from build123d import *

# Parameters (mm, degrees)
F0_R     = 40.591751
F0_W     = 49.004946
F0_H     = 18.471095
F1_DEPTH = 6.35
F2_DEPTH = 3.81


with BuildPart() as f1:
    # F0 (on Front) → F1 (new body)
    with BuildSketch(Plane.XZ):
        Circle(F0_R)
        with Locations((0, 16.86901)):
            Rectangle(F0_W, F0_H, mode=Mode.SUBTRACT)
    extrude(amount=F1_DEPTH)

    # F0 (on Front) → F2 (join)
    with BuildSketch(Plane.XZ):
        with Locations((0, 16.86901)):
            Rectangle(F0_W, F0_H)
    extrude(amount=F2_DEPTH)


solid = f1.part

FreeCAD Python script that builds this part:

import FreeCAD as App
import Part
import Sketcher
from FreeCAD import Vector
Q = App.Units.Quantity

doc = App.newDocument("Part")
body = doc.addObject("PartDesign::Body", "Body")

# Sketch on XZ plane
sketch1 = body.newObject("Sketcher::SketchObject", "Sketch")
sketch1.AttachmentSupport = (doc.getObject("XZ_Plane"), [""])
sketch1.MapMode = "FlatFace"
sketch1.addGeometry(Part.Circle(Vector(0, 0, 0), Vector(0, 0, 1), 41), False)
sketch1.addGeometry(Part.LineSegment(Vector(25, 8, 0), Vector(-25, 8, 0)), False)
sketch1.addGeometry(Part.LineSegment(Vector(-25, 8, 0), Vector(-25, 26, 0)), False)
sketch1.addGeometry(Part.LineSegment(Vector(-25, 26, 0), Vector(25, 26, 0)), False)
sketch1.addGeometry(Part.LineSegment(Vector(25, 26, 0), Vector(25, 8, 0)), False)
sketch1.addConstraint(Sketcher.Constraint("Coincident", 1, 2, 2, 1))
sketch1.addConstraint(Sketcher.Constraint("Coincident", 2, 2, 3, 1))
sketch1.addConstraint(Sketcher.Constraint("Coincident", 3, 2, 4, 1))
sketch1.addConstraint(Sketcher.Constraint("Coincident", 4, 2, 1, 1))
sketch1.addConstraint(Sketcher.Constraint("Horizontal", 1))
sketch1.addConstraint(Sketcher.Constraint("Vertical", 2))
sketch1.addConstraint(Sketcher.Constraint("Horizontal", 3))
sketch1.addConstraint(Sketcher.Constraint("Vertical", 4))
sketch1.addConstraint(Sketcher.Constraint("Coincident", 0, 3, -1, 1))
sketch1.addConstraint(Sketcher.Constraint("Diameter", 0, 81.183502))
sketch1.addConstraint(Sketcher.Constraint("DistanceX", 1, 2, 1, 1, 49.004946))
sketch1.addConstraint(Sketcher.Constraint("DistanceY", 2, 1, 2, 2, 18.471095))
sketch1.addConstraint(Sketcher.Constraint("DistanceX", 1, 2, -1, 1, 24.502473))
sketch1.addConstraint(Sketcher.Constraint("DistanceY", -1, 1, 1, 2, 7.633463))
pad1 = body.newObject("PartDesign::Pad", "Pad")
pad1.Profile = sketch1
pad1.Length = Q("0.25 in")

# Sketch on XZ plane
sketch2 = body.newObject("Sketcher::SketchObject", "Sketch001")
sketch2.AttachmentSupport = (doc.getObject("XZ_Plane"), [""])
sketch2.MapMode = "FlatFace"
sketch2.addGeometry(Part.LineSegment(Vector(-25, 26, 0), Vector(-25, 8, 0)), False)
sketch2.addGeometry(Part.LineSegment(Vector(-25, 8, 0), Vector(25, 8, 0)), False)
sketch2.addGeometry(Part.LineSegment(Vector(25, 8, 0), Vector(25, 26, 0)), False)
sketch2.addGeometry(Part.LineSegment(Vector(25, 26, 0), Vector(-25, 26, 0)), False)
sketch2.addConstraint(Sketcher.Constraint("Coincident", 0, 2, 1, 1))
sketch2.addConstraint(Sketcher.Constraint("Coincident", 1, 2, 2, 1))
sketch2.addConstraint(Sketcher.Constraint("Coincident", 2, 2, 3, 1))
sketch2.addConstraint(Sketcher.Constraint("Coincident", 3, 2, 0, 1))
sketch2.addConstraint(Sketcher.Constraint("Vertical", 0))
sketch2.addConstraint(Sketcher.Constraint("Horizontal", 1))
sketch2.addConstraint(Sketcher.Constraint("Vertical", 2))
sketch2.addConstraint(Sketcher.Constraint("Horizontal", 3))
sketch2.addConstraint(Sketcher.Constraint("DistanceX", 1, 1, 1, 2, 49.004946))
sketch2.addConstraint(Sketcher.Constraint("DistanceY", 0, 2, 0, 1, 18.471095))
sketch2.addConstraint(Sketcher.Constraint("DistanceX", 0, 2, -1, 1, 24.502473))
sketch2.addConstraint(Sketcher.Constraint("DistanceY", -1, 1, 0, 2, 7.633463))
pad2 = body.newObject("PartDesign::Pad", "Pad001")
pad2.Profile = sketch2
pad2.Length = Q("0.15 in")

doc.recompute()
